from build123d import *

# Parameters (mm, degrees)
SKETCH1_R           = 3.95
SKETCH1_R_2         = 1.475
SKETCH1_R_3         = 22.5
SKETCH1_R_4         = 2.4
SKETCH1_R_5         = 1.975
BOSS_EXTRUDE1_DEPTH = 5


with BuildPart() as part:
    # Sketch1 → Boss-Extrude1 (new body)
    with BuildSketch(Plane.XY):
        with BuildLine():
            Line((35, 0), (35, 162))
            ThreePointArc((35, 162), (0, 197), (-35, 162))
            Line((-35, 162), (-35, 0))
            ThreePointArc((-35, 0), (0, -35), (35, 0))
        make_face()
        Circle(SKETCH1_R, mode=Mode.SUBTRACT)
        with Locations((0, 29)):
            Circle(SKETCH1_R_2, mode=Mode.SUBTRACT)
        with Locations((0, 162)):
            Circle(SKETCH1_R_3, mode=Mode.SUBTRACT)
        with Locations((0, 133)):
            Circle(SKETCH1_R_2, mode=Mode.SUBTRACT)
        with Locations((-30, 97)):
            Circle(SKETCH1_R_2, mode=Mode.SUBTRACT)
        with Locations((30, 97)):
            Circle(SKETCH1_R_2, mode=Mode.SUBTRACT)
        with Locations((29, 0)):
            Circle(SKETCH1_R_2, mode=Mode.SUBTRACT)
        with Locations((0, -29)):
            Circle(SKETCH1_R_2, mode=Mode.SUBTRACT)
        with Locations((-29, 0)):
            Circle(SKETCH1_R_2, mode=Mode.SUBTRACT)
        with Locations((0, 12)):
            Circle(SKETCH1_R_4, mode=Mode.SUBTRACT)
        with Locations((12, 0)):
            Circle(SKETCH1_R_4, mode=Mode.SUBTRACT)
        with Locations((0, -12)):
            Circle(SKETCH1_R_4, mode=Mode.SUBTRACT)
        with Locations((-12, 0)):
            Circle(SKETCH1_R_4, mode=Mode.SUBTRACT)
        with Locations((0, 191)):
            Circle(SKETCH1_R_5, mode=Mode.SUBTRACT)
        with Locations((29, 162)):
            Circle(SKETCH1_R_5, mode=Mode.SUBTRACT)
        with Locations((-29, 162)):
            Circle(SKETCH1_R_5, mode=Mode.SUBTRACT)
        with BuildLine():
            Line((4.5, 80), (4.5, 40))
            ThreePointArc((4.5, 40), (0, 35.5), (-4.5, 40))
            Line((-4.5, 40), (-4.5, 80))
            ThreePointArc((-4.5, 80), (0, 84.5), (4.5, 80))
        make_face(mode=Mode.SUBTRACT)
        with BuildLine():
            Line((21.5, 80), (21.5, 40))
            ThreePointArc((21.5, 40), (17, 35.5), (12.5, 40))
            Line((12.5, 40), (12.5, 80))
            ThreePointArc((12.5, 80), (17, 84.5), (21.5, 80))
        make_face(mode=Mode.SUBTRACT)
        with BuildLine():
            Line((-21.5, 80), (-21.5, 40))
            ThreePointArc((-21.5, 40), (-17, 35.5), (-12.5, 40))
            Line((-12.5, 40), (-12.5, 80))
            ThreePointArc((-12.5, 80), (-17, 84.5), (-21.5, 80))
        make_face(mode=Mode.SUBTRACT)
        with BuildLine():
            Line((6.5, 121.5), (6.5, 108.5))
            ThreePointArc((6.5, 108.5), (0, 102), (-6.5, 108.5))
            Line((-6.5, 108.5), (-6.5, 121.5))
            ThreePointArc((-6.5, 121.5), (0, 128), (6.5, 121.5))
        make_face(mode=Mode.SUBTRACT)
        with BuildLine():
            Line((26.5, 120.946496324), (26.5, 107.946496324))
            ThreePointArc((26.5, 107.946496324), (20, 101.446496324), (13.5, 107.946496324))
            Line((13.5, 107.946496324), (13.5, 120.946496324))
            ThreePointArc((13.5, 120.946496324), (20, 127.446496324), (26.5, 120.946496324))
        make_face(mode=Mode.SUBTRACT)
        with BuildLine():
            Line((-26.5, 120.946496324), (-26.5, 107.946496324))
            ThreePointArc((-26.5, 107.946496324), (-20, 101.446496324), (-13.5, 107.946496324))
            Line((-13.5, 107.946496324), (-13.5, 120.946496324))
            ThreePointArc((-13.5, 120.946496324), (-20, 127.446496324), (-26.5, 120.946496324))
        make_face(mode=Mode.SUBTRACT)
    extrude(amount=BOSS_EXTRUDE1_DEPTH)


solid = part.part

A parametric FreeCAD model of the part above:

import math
import FreeCAD as App
import Part
import Sketcher
from FreeCAD import Vector

doc = App.newDocument("Part")
body = doc.addObject("PartDesign::Body", "Body")

sketch1 = body.newObject("Sketcher::SketchObject", "Sketch")
sketch1.AttachmentSupport = (doc.getObject("XY_Plane"), [""])
sketch1.MapMode = "FlatFace"
sketch1.addGeometry(Part.LineSegment(Vector(35, 0, 0), Vector(35, 162, 0)), False)
sketch1.addGeometry(Part.ArcOfCircle(Part.Circle(Vector(0, 162, 0), Vector(0, 0, 1), 35), math.radians(0), math.radians(180)), False)
sketch1.addGeometry(Part.LineSegment(Vector(-35, 162, 0), Vector(-35, 0, 0)), False)
sketch1.addGeometry(Part.ArcOfCircle(Part.Circle(Vector(0, 0, 0), Vector(0, 0, 1), 35), math.radians(180), math.radians(360)), False)
sketch1.addGeometry(Part.Circle(Vector(-29, 0, 0), Vector(0, 0, 1), 1.5), False)
sketch1.addGeometry(Part.Circle(Vector(-12, 0, 0), Vector(0, 0, 1), 2.4), False)
sketch1.addGeometry(Part.LineSegment(Vector(-21.5, 40, 0), Vector(-21.5, 80, 0)), False)
sketch1.addGeometry(Part.ArcOfCircle(Part.Circle(Vector(-17, 80, 0), Vector(0, 0, 1), 4.5), math.radians(0), math.radians(180)), False)
sketch1.addGeometry(Part.LineSegment(Vector(-12.5, 80, 0), Vector(-12.5, 40, 0)), False)
sketch1.addGeometry(Part.ArcOfCircle(Part.Circle(Vector(-17, 40, 0), Vector(0, 0, 1), 4.5), math.radians(180), math.radians(360)), False)
sketch1.addGeometry(Part.Circle(Vector(0, -29, 0), Vector(0, 0, 1), 1.5), False)
sketch1.addGeometry(Part.Circle(Vector(0, -12, 0), Vector(0, 0, 1), 2.4), False)
sketch1.addGeometry(Part.Circle(Vector(0, 0, 0), Vector(0, 0, 1), 4), False)
sketch1.addGeometry(Part.Circle(Vector(0, 12, 0), Vector(0, 0, 1), 2.4), False)
sketch1.addGeometry(Part.Circle(Vector(12, 0, 0), Vector(0, 0, 1), 2.4), False)
sketch1.addGeometry(Part.Circle(Vector(29, 0, 0), Vector(0, 0, 1), 1.5), False)
sketch1.addGeometry(Part.Circle(Vector(0, 29, 0), Vector(0, 0, 1), 1.5), False)
sketch1.addGeometry(Part.ArcOfCircle(Part.Circle(Vector(0, 80, 0), Vector(0, 0, 1), 4.5), math.radians(0), math.radians(180)), False)
sketch1.addGeometry(Part.LineSegment(Vector(4.5, 80, 0), Vector(4.5, 40, 0)), False)
sketch1.addGeometry(Part.ArcOfCircle(Part.Circle(Vector(0, 40, 0), Vector(0, 0, 1), 4.5), math.radians(180), math.radians(360)), False)
sketch1.addGeometry(Part.LineSegment(Vector(-4.5, 40, 0), Vector(-4.5, 80, 0)), False)
sketch1.addGeometry(Part.ArcOfCircle(Part.Circle(Vector(17, 80, 0), Vector(0, 0, 1), 4.5), math.radians(0), math.radians(180)), False)
sketch1.addGeometry(Part.LineSegment(Vector(21.5, 80, 0), Vector(21.5, 40, 0)), False)
sketch1.addGeometry(Part.ArcOfCircle(Part.Circle(Vector(17, 40, 0), Vector(0, 0, 1), 4.5), math.radians(180), math.radians(360)), False)
sketch1.addGeometry(Part.LineSegment(Vector(12.5, 40, 0), Vector(12.5, 80, 0)), False)
sketch1.addGeometry(Part.Circle(Vector(-30, 97, 0), Vector(0, 0, 1), 1.5), False)
sketch1.addGeometry(Part.LineSegment(Vector(-26.5, 107.9, 0), Vector(-26.5, 120.9, 0)), False)
sketch1.addGeometry(Part.ArcOfCircle(Part.Circle(Vector(-20, 120.9, 0), Vector(0, 0, 1), 6.5), math.radians(0), math.radians(180)), False)
sketch1.addGeometry(Part.LineSegment(Vector(-13.5, 120.9, 0), Vector(-13.5, 107.9, 0)), False)
sketch1.addGeometry(Part.ArcOfCircle(Part.Circle(Vector(-20, 107.9, 0), Vector(0, 0, 1), 6.5), math.radians(180), math.radians(360)), False)
sketch1.addGeometry(Part.Circle(Vector(-29, 162, 0), Vector(0, 0, 1), 2), False)
sketch1.addGeometry(Part.ArcOfCircle(Part.Circle(Vector(0, 121.5, 0), Vector(0, 0, 1), 6.5), math.radians(0), math.radians(180)), False)
sketch1.addGeometry(Part.LineSegment(Vector(6.5, 121.5, 0), Vector(6.5, 108.5, 0)), False)
sketch1.addGeometry(Part.ArcOfCircle(Part.Circle(Vector(0, 108.5, 0), Vector(0, 0, 1), 6.5), math.radians(180), math.radians(360)), False)
sketch1.addGeometry(Part.LineSegment(Vector(-6.5, 108.5, 0), Vector(-6.5, 121.5, 0)), False)
sketch1.addGeometry(Part.Circle(Vector(0, 133, 0), Vector(0, 0, 1), 1.5), False)
sketch1.addGeometry(Part.Circle(Vector(30, 97, 0), Vector(0, 0, 1), 1.5), False)
sketch1.addGeometry(Part.ArcOfCircle(Part.Circle(Vector(20, 120.9, 0), Vector(0, 0, 1), 6.5), math.radians(0), math.radians(180)), False)
sketch1.addGeometry(Part.LineSegment(Vector(26.5, 120.9, 0), Vector(26.5, 107.9, 0)), False)
sketch1.addGeometry(Part.ArcOfCircle(Part.Circle(Vector(20, 107.9, 0), Vector(0, 0, 1), 6.5), math.radians(180), math.radians(360)), False)
sketch1.addGeometry(Part.LineSegment(Vector(13.5, 107.9, 0), Vector(13.5, 120.9, 0)), False)
sketch1.addGeometry(Part.Circle(Vector(0, 162, 0), Vector(0, 0, 1), 22.5), False)
sketch1.addGeometry(Part.Circle(Vector(0, 191, 0), Vector(0, 0, 1), 2), False)
sketch1.addGeometry(Part.Circle(Vector(29, 162, 0), Vector(0, 0, 1), 2), False)
sketch1.addConstraint(Sketcher.Constraint("Tangent", 0, 2, 1, 1))
sketch1.addConstraint(Sketcher.Constraint("Tangent", 1, 2, 2, 1))
sketch1.addConstraint(Sketcher.Constraint("Tangent", 2, 2, 3, 1))
sketch1.addConstraint(Sketcher.Constraint("Tangent", 3, 2, 0, 1))
sketch1.addConstraint(Sketcher.Constraint("Tangent", 6, 2, 7, 2))
sketch1.addConstraint(Sketcher.Constraint("Tangent", 7, 1, 8, 1))
sketch1.addConstraint(Sketcher.Constraint("Tangent", 8, 2, 9, 2))
sketch1.addConstraint(Sketcher.Constraint("Tangent", 9, 1, 6, 1))
sketch1.addConstraint(Sketcher.Constraint("Tangent", 17, 1, 18, 1))
sketch1.addConstraint(Sketcher.Constraint("Tangent", 18, 2, 19, 2))
sketch1.addConstraint(Sketcher.Constraint("Tangent", 19, 1, 20, 1))
sketch1.addConstraint(Sketcher.Constraint("Tangent", 20, 2, 17, 2))
sketch1.addConstraint(Sketcher.Constraint("Tangent", 21, 1, 22, 1))
sketch1.addConstraint(Sketcher.Constraint("Tangent", 22, 2, 23, 2))
sketch1.addConstraint(Sketcher.Constraint("Tangent", 23, 1, 24, 1))
sketch1.addConstraint(Sketcher.Constraint("Tangent", 24, 2, 21, 2))
sketch1.addConstraint(Sketcher.Constraint("Tangent", 26, 2, 27, 2))
sketch1.addConstraint(Sketcher.Constraint("Tangent", 27, 1, 28, 1))
sketch1.addConstraint(Sketcher.Constraint("Tangent", 28, 2, 29, 2))
sketch1.addConstraint(Sketcher.Constraint("Tangent", 29, 1, 26, 1))
sketch1.addConstraint(Sketcher.Constraint("Tangent", 31, 1, 32, 1))
sketch1.addConstraint(Sketcher.Constraint("Tangent", 32, 2, 33, 2))
sketch1.addConstraint(Sketcher.Constraint("Tangent", 33, 1, 34, 1))
sketch1.addConstraint(Sketcher.Constraint("Tangent", 34, 2, 31, 2))
sketch1.addConstraint(Sketcher.Constraint("Tangent", 37, 1, 38, 1))
sketch1.addConstraint(Sketcher.Constraint("Tangent", 38, 2, 39, 2))
sketch1.addConstraint(Sketcher.Constraint("Tangent", 39, 1, 40, 1))
sketch1.addConstraint(Sketcher.Constraint("Tangent", 40, 2, 37, 2))
sketch1.addConstraint(Sketcher.Constraint("Vertical", 0))
sketch1.addConstraint(Sketcher.Constraint("Vertical", 2))
sketch1.addConstraint(Sketcher.Constraint("Vertical", 6))
sketch1.addConstraint(Sketcher.Constraint("Vertical", 8))
sketch1.addConstraint(Sketcher.Constraint("Vertical", 18))
sketch1.addConstraint(Sketcher.Constraint("Vertical", 20))
sketch1.addConstraint(Sketcher.Constraint("Vertical", 22))
sketch1.addConstraint(Sketcher.Constraint("Vertical", 24))
sketch1.addConstraint(Sketcher.Constraint("Vertical", 26))
sketch1.addConstraint(Sketcher.Constraint("Vertical", 28))
sketch1.addConstraint(Sketcher.Constraint("Vertical", 32))
sketch1.addConstraint(Sketcher.Constraint("Vertical", 34))
sketch1.addConstraint(Sketcher.Constraint("Vertical", 38))
sketch1.addConstraint(Sketcher.Constraint("Vertical", 40))
sketch1.addConstraint(Sketcher.Constraint("Coincident", 3, 3, -1, 1))
sketch1.addConstraint(Sketcher.Constraint("Coincident", 12, 3, -1, 1))
sketch1.addConstraint(Sketcher.Constraint("Coincident", 41, 3, 1, 3))
sketch1.addConstraint(Sketcher.Constraint("Equal", 4, 10))
sketch1.addConstraint(Sketcher.Constraint("Equal", 5, 11))
sketch1.addConstraint(Sketcher.Constraint("Equal", 11, 13))
sketch1.addConstraint(Sketcher.Constraint("Equal", 13, 14))
sketch1.addConstraint(Sketcher.Constraint("Equal", 10, 15))
sketch1.addConstraint(Sketcher.Constraint("Equal", 15, 16))
sketch1.addConstraint(Sketcher.Constraint("Equal", 9, 17))
sketch1.addConstraint(Sketcher.Constraint("Equal", 19, 21))
sketch1.addConstraint(Sketcher.Constraint("Equal", 16, 25))
sketch1.addConstraint(Sketcher.Constraint("Equal", 29, 31))
sketch1.addConstraint(Sketcher.Constraint("Equal", 25, 35))
sketch1.addConstraint(Sketcher.Constraint("Equal", 35, 36))
sketch1.addConstraint(Sketcher.Constraint("Equal", 33, 37))
sketch1.addConstraint(Sketcher.Constraint("Equal", 30, 42))
sketch1.addConstraint(Sketcher.Constraint("Equal", 42, 43))
sketch1.addConstraint(Sketcher.Constraint("Symmetric", 11, 3, 13, 3, -1, 1))
sketch1.addConstraint(Sketcher.Constraint("Symmetric", 5, 3, 14, 3, -1, 1))
sketch1.addConstraint(Sketcher.Constraint("Symmetric", 4, 3, 15, 3, -1, 1))
sketch1.addConstraint(Sketcher.Constraint("Symmetric", 10, 3, 16, 3, -1, 1))
sketch1.addConstraint(Sketcher.Constraint("Symmetric", 7, 3, 21, 3, -2))
sketch1.addConstraint(Sketcher.Constraint("Symmetric", 25, 3, 36, 3, -2))
sketch1.addConstraint(Sketcher.Constraint("Symmetric", 27, 3, 37, 3, -2))
sketch1.addConstraint(Sketcher.Constraint("Symmetric", 30, 3, 43, 3, -2))
sketch1.addConstraint(Sketcher.Constraint("PointOnObject", 4, 3, -1))
sketch1.addConstraint(Sketcher.Constraint("PointOnObject", 5, 3, -1))
sketch1.addConstraint(Sketcher.Constraint("PointOnObject", 10, 3, -2))
sketch1.addConstraint(Sketcher.Constraint("PointOnObject", 11, 3, -2))
sketch1.addConstraint(Sketcher.Constraint("PointOnObject", 17, 3, -2))
sketch1.addConstraint(Sketcher.Constraint("PointOnObject", 31, 3, -2))
sketch1.addConstraint(Sketcher.Constraint("PointOnObject", 35, 3, -2))
sketch1.addConstraint(Sketcher.Constraint("PointOnObject", 42, 3, -2))
sketch1.addConstraint(Sketcher.Constraint("Horizontal", 7, 3, 17, 3))
sketch1.addConstraint(Sketcher.Constraint("Horizontal", 9, 3, 19, 3))
sketch1.addConstraint(Sketcher.Constraint("Horizontal", 19, 3, 23, 3))
sketch1.addConstraint(Sketcher.Constraint("Horizontal", 1, 3, 30, 3))
sketch1.addConstraint(Sketcher.Constraint("Horizontal", 29, 3, 39, 3))
sketch1.addConstraint(Sketcher.Constraint("Vertical", 4, 3, 30, 3))
sketch1.addConstraint(Sketcher.Constraint("Equal", 28, 32))
sketch1.addConstraint(Sketcher.Constraint("Diameter", 41, 45.0))
sketch1.addConstraint(Sketcher.Constraint("Radius", 1, 35.0))
sketch1.addConstraint(Sketcher.Constraint("Diameter", 5, 4.8))
sketch1.addConstraint(Sketcher.Constraint("Diameter", 12, 7.9))
sketch1.addConstraint(Sketcher.Constraint("Radius", 7, 4.5))
sketch1.addConstraint(Sketcher.Constraint("Radius", 27, 6.5))
sketch1.addConstraint(Sketcher.Constraint("Diameter", 4, 2.95))
sketch1.addConstraint(Sketcher.Constraint("Diameter", 30, 3.95))
sketch1.addConstraint(Sketcher.Constraint("DistanceY", 0, 1, 0, 2, 162.0))
sketch1.addConstraint(Sketcher.Constraint("DistanceY", 6, 1, 6, 2, 40.0))
sketch1.addConstraint(Sketcher.Constraint("DistanceY", 26, 1, 26, 2, 13.0))
sketch1.addConstraint(Sketcher.Constraint("DistanceX", 4, 3, -1, 1, 29.0))
sketch1.addConstraint(Sketcher.Constraint("DistanceX", 5, 3, -1, 1, 12.0))
sketch1.addConstraint(Sketcher.Constraint("DistanceX", 7, 3, -1, 1, 17.0))
sketch1.addConstraint(Sketcher.Constraint("DistanceY", -1, 1, 7, 3, 80.0))
sketch1.addConstraint(Sketcher.Constraint("DistanceY", 10, 3, -1, 1, 29.0))
sketch1.addConstraint(Sketcher.Constraint("DistanceY", 11, 3, -1, 1, 12.0))
sketch1.addConstraint(Sketcher.Constraint("DistanceX", 25, 3, -1, 1, 30.0))
sketch1.addConstraint(Sketcher.Constraint("DistanceY", -1, 1, 25, 3, 97.0))
sketch1.addConstraint(Sketcher.Constraint("DistanceX", 27, 3, -1, 1, 20.0))
sketch1.addConstraint(Sketcher.Constraint("DistanceY", -1, 1, 35, 3, 133.0))
sketch1.addConstraint(Sketcher.Constraint("DistanceY", -1, 1, 42, 3, 191.0))
sketch1.addConstraint(Sketcher.Constraint("DistanceY", -1, 1, 31, 3, 121.5))
sketch1.addConstraint(Sketcher.Constraint("DistanceY", -1, 1, 27, 3, 120.946496))
pad1 = body.newObject("PartDesign::Pad", "Pad")
pad1.Profile = sketch1
pad1.Length = 5

doc.recompute()
